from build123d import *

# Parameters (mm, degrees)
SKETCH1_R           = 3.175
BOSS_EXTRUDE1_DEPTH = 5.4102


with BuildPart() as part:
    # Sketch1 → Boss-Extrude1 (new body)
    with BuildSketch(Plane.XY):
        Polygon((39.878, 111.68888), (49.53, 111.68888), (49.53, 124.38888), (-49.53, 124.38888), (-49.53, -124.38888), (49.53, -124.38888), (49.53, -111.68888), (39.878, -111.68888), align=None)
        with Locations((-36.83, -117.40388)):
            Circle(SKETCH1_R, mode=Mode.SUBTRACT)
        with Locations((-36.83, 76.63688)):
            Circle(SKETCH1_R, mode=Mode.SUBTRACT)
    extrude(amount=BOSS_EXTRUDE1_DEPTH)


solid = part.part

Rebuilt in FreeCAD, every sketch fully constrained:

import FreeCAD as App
import Part
import Sketcher

V = App.Vector
Q = App.Units.Quantity


def add_polygon(sketch, points):
    """Adds a closed chain of lines whose ends are joined by coincident constraints."""
    first, n = sketch.GeometryCount, len(points)
    for a, b in zip(points, points[1:] + points[:1]):
        sketch.addGeometry(Part.LineSegment(App.Vector(*a, 0), App.Vector(*b, 0)), False)
    for i in range(n):
        sketch.addConstraint(Sketcher.Constraint("Coincident", first + i, 2, first + (i + 1) % n, 1))

doc = App.newDocument("Part")
body = doc.addObject("PartDesign::Body", "Body")

# Sketch on XY plane
sketch1 = doc.addObject("Sketcher::SketchObject", "Sketch")
body.addObject(sketch1)
sketch1.AttachmentSupport = (doc.XY_Plane, [""])
sketch1.MapMode = "FlatFace"
add_polygon(sketch1, [(39.9, 111.7), (49.5, 111.7), (49.5, 124.4), (-49.5, 124.4), (-49.5, -124.4), (49.5, -124.4), (49.5, -111.7), (39.9, -111.7)])  # lines 0-7
sketch1.addGeometry(Part.Circle(V(-36.8, -117.4, 0), V(0, 0, 1), 3.2), False)  # 8
sketch1.addGeometry(Part.Circle(V(-36.8, 76.6, 0), V(0, 0, 1), 3.2), False)  # 9
sketch1.addConstraint([
    Sketcher.Constraint("Horizontal", 0),
    Sketcher.Constraint("Vertical", 1),
    Sketcher.Constraint("Horizontal", 2),
    Sketcher.Constraint("Vertical", 3),
    Sketcher.Constraint("Horizontal", 4),
    Sketcher.Constraint("Vertical", 5),
    Sketcher.Constraint("Horizontal", 6),
    Sketcher.Constraint("Vertical", 7),
    Sketcher.Constraint("Equal", 8, 9),
    Sketcher.Constraint("Symmetric", 1, 2, 3, 2, -1, 1),
    Sketcher.Constraint("Symmetric", 0, 2, 5, 2, -1),
    Sketcher.Constraint("Vertical", 8, 3, 9, 3),
    Sketcher.Constraint("Diameter", 8, Q("0.25 in")),
    Sketcher.Constraint("DistanceX", 2, 2, 2, 1, Q("3.9 in")),
    Sketcher.Constraint("DistanceY", 1, 1, 1, 2, Q("0.5 in")),
    Sketcher.Constraint("DistanceX", 0, 1, 0, 2, Q("0.38 in")),
    Sketcher.Constraint("DistanceX", 9, 3, 0, 2, Q("3.4 in")),
    Sketcher.Constraint("DistanceY", 9, 3, 0, 2, Q("1.38 in")),
    Sketcher.Constraint("DistanceY", 3, 2, 3, 1, Q("9.7944 in")),
    Sketcher.Constraint("DistanceY", 3, 2, 8, 3, Q("0.275 in")),
])
pad1 = doc.addObject("PartDesign::Pad", "Pad")
body.addObject(pad1)
pad1.Profile = sketch1
pad1.Length = Q("0.213 in")

doc.recompute()
